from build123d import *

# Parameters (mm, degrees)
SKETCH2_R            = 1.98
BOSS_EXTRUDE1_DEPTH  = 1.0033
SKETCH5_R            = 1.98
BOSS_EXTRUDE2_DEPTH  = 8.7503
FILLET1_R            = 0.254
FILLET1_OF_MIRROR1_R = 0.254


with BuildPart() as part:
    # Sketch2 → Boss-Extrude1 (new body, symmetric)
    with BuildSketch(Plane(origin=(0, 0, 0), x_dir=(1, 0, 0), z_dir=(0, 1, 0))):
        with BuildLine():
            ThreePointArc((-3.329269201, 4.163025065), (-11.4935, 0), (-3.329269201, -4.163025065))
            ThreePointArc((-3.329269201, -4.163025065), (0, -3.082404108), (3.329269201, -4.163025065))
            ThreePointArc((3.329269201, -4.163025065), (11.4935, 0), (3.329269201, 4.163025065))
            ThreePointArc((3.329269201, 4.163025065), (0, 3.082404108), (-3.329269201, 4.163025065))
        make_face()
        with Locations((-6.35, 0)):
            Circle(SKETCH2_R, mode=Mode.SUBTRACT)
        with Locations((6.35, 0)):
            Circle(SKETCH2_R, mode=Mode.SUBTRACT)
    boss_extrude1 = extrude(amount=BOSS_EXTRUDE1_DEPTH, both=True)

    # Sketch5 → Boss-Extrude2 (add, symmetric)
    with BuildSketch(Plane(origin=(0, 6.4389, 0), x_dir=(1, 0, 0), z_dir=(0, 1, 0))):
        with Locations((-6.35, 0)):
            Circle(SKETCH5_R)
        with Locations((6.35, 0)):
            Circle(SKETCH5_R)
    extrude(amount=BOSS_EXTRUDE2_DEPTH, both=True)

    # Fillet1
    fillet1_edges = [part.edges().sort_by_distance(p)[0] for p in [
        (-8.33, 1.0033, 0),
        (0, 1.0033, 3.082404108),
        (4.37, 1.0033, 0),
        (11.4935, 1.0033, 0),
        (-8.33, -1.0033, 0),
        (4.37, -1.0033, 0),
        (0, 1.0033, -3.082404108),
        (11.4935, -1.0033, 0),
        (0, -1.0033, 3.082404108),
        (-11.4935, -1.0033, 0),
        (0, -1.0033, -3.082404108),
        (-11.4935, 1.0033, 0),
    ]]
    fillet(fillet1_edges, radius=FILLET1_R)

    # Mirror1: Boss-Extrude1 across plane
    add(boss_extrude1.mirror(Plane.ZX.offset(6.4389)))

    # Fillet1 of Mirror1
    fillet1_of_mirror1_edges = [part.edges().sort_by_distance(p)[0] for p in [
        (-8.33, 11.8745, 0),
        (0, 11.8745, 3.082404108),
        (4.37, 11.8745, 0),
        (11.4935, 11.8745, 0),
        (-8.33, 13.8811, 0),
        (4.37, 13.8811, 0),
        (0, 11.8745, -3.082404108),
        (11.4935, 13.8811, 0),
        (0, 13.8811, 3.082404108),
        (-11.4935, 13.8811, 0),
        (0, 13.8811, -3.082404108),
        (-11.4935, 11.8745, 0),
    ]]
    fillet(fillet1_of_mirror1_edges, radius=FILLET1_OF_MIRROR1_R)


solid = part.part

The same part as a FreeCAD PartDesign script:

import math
import FreeCAD as App
import Part
import Sketcher
from FreeCAD import Vector
Q = App.Units.Quantity


def edges_at(feature, points):
    """Names of the edges that pass closest to the given points."""
    edges = feature.Shape.Edges
    near = lambda p: min(range(len(edges)), key=lambda i: edges[i].distToShape(Part.Vertex(*p))[0])
    return sorted({f"Edge{near(p) + 1}" for p in points})

doc = App.newDocument("Part")
params = doc.addObject("Spreadsheet::Sheet", "Params")
for row, (alias, value) in enumerate([
    ("pad1_length", "0.079 in"),
    ("pad2_length", "0.689 in"),
    ("fillet_radius", "0.01 in"),
    ("fillet2_radius", "0.01 in"),
], start=1):
    params.set(f"A{row}", alias)
    params.set(f"B{row}", "=" + value)
    params.setAlias(f"B{row}", alias)

body = doc.addObject("PartDesign::Body", "Body")

sketch1 = body.newObject("Sketcher::SketchObject", "Sketch")
sketch1.AttachmentSupport = (doc.getObject("XZ_Plane"), [""])
sketch1.MapMode = "FlatFace"
sketch1.addGeometry(Part.ArcOfCircle(Part.Circle(Vector(-6.35, 0, 0), Vector(0, 0, 1), 5.1435), math.radians(54.035002), math.radians(305.964998)), False)
sketch1.addGeometry(Part.ArcOfCircle(Part.Circle(Vector(0, 8.751263, 0), Vector(0, 0, 1), 5.668859), math.radians(-125.964998), math.radians(-54.035002)), False)
sketch1.addGeometry(Part.ArcOfCircle(Part.Circle(Vector(6.35, 0, 0), Vector(0, 0, 1), 5.1435), math.radians(-125.964998), math.radians(125.964998)), False)
sketch1.addGeometry(Part.ArcOfCircle(Part.Circle(Vector(0, -8.751263, 0), Vector(0, 0, 1), 5.668859), math.radians(54.035002), math.radians(125.964998)), False)
sketch1.addGeometry(Part.Circle(Vector(-6.35, 0, 0), Vector(0, 0, 1), 1.98), False)
sketch1.addGeometry(Part.Circle(Vector(6.35, 0, 0), Vector(0, 0, 1), 1.98), False)
sketch1.addConstraint(Sketcher.Constraint("Tangent", 0, 1, 1, 1))
sketch1.addConstraint(Sketcher.Constraint("Tangent", 1, 2, 2, 2))
sketch1.addConstraint(Sketcher.Constraint("Tangent", 2, 1, 3, 1))
sketch1.addConstraint(Sketcher.Constraint("Tangent", 3, 2, 0, 2))
sketch1.addConstraint(Sketcher.Constraint("Coincident", 4, 3, 0, 3))
sketch1.addConstraint(Sketcher.Constraint("Coincident", 5, 3, 2, 3))
sketch1.addConstraint(Sketcher.Constraint("Equal", 0, 2))
sketch1.addConstraint(Sketcher.Constraint("Equal", 1, 3))
sketch1.addConstraint(Sketcher.Constraint("Equal", 4, 5))
sketch1.addConstraint(Sketcher.Constraint("Symmetric", 0, 3, 2, 3, -1, 1))
sketch1.addConstraint(Sketcher.Constraint("PointOnObject", 0, 3, -1))
sketch1.addConstraint(Sketcher.Constraint("Radius", 0, Q("0.2025 in")))
sketch1.addConstraint(Sketcher.Constraint("DistanceX", 0, 3, 2, 3, Q("0.5 in")))
sketch1.addConstraint(Sketcher.Constraint("Diameter", 4, Q("3.96 mm")))
sketch1.addConstraint(Sketcher.Constraint("Radius", 1, Q("5.668859 mm")))
pad1 = body.newObject("PartDesign::Pad", "Pad")
pad1.Profile = sketch1
pad1.setExpression("Length", "Params.pad1_length")
pad1.Midplane = True

sketch2 = body.newObject("Sketcher::SketchObject", "Sketch001")
sketch2.AttachmentSupport = (doc.getObject("XZ_Plane"), [""])
sketch2.MapMode = "FlatFace"
sketch2.AttachmentOffset = App.Placement(Vector(0, 0, -0.2535 * 25.4), App.Rotation())
sketch2.addGeometry(Part.Circle(Vector(-6.35, 0, 0), Vector(0, 0, 1), 1.98), False)
sketch2.addGeometry(Part.Circle(Vector(6.35, 0, 0), Vector(0, 0, 1), 1.98), False)
sketch2.addConstraint(Sketcher.Constraint("Equal", 0, 1))
sketch2.addConstraint(Sketcher.Constraint("Symmetric", 0, 3, 1, 3, -1, 1))
sketch2.addConstraint(Sketcher.Constraint("PointOnObject", 0, 3, -1))
sketch2.addConstraint(Sketcher.Constraint("DistanceX", 0, 3, 1, 3, Q("0.5 in")))
sketch2.addConstraint(Sketcher.Constraint("Diameter", 0, Q("3.96 mm")))
pad2 = body.newObject("PartDesign::Pad", "Pad001")
pad2.Profile = sketch2
pad2.setExpression("Length", "Params.pad2_length")
pad2.Midplane = True
doc.recompute()

fillet = body.newObject("PartDesign::Fillet", "Fillet")
fillet.Base = (pad2, edges_at(pad2, [
    (-8.33, 1.003, 0),
    (0, 1.003, 3.082),
    (4.37, 1.003, 0),
    (11.493, 1.003, 0),
    (-8.33, -1.003, 0),
    (4.37, -1.003, 0),
    (0, 1.003, -3.082),
    (11.493, -1.003, 0),
    (0, -1.003, 3.082),
    (-11.493, -1.003, 0),
    (0, -1.003, -3.082),
    (-11.493, 1.003, 0),
]))
fillet.setExpression("Radius", "Params.fillet_radius")
doc.recompute()

datumplane = body.newObject("PartDesign::Plane", "DatumPlane")
datumplane.AttachmentSupport = (doc.getObject("XZ_Plane"), [""])
datumplane.MapMode = "FlatFace"
datumplane.AttachmentOffset = App.Placement(Vector(0, 0, -0.2535 * 25.4), App.Rotation())
mirrored = body.newObject("PartDesign::Mirrored", "Mirrored")
mirrored.Originals = [pad1]
mirrored.MirrorPlane = (datumplane, [""])
body.Tip = mirrored
doc.recompute()

fillet2 = body.newObject("PartDesign::Fillet", "Fillet001")
fillet2.Base = (mirrored, edges_at(mirrored, [
    (-8.33, 11.874, 0),
    (0, 11.874, 3.082),
    (4.37, 11.874, 0),
    (11.493, 11.874, 0),
    (-8.33, 13.881, 0),
    (4.37, 13.881, 0),
    (0, 11.874, -3.082),
    (11.493, 13.881, 0),
    (0, 13.881, 3.082),
    (-11.493, 13.881, 0),
    (0, 13.881, -3.082),
    (-11.493, 11.874, 0),
]))
fillet2.setExpression("Radius", "Params.fillet2_radius")

doc.recompute()
